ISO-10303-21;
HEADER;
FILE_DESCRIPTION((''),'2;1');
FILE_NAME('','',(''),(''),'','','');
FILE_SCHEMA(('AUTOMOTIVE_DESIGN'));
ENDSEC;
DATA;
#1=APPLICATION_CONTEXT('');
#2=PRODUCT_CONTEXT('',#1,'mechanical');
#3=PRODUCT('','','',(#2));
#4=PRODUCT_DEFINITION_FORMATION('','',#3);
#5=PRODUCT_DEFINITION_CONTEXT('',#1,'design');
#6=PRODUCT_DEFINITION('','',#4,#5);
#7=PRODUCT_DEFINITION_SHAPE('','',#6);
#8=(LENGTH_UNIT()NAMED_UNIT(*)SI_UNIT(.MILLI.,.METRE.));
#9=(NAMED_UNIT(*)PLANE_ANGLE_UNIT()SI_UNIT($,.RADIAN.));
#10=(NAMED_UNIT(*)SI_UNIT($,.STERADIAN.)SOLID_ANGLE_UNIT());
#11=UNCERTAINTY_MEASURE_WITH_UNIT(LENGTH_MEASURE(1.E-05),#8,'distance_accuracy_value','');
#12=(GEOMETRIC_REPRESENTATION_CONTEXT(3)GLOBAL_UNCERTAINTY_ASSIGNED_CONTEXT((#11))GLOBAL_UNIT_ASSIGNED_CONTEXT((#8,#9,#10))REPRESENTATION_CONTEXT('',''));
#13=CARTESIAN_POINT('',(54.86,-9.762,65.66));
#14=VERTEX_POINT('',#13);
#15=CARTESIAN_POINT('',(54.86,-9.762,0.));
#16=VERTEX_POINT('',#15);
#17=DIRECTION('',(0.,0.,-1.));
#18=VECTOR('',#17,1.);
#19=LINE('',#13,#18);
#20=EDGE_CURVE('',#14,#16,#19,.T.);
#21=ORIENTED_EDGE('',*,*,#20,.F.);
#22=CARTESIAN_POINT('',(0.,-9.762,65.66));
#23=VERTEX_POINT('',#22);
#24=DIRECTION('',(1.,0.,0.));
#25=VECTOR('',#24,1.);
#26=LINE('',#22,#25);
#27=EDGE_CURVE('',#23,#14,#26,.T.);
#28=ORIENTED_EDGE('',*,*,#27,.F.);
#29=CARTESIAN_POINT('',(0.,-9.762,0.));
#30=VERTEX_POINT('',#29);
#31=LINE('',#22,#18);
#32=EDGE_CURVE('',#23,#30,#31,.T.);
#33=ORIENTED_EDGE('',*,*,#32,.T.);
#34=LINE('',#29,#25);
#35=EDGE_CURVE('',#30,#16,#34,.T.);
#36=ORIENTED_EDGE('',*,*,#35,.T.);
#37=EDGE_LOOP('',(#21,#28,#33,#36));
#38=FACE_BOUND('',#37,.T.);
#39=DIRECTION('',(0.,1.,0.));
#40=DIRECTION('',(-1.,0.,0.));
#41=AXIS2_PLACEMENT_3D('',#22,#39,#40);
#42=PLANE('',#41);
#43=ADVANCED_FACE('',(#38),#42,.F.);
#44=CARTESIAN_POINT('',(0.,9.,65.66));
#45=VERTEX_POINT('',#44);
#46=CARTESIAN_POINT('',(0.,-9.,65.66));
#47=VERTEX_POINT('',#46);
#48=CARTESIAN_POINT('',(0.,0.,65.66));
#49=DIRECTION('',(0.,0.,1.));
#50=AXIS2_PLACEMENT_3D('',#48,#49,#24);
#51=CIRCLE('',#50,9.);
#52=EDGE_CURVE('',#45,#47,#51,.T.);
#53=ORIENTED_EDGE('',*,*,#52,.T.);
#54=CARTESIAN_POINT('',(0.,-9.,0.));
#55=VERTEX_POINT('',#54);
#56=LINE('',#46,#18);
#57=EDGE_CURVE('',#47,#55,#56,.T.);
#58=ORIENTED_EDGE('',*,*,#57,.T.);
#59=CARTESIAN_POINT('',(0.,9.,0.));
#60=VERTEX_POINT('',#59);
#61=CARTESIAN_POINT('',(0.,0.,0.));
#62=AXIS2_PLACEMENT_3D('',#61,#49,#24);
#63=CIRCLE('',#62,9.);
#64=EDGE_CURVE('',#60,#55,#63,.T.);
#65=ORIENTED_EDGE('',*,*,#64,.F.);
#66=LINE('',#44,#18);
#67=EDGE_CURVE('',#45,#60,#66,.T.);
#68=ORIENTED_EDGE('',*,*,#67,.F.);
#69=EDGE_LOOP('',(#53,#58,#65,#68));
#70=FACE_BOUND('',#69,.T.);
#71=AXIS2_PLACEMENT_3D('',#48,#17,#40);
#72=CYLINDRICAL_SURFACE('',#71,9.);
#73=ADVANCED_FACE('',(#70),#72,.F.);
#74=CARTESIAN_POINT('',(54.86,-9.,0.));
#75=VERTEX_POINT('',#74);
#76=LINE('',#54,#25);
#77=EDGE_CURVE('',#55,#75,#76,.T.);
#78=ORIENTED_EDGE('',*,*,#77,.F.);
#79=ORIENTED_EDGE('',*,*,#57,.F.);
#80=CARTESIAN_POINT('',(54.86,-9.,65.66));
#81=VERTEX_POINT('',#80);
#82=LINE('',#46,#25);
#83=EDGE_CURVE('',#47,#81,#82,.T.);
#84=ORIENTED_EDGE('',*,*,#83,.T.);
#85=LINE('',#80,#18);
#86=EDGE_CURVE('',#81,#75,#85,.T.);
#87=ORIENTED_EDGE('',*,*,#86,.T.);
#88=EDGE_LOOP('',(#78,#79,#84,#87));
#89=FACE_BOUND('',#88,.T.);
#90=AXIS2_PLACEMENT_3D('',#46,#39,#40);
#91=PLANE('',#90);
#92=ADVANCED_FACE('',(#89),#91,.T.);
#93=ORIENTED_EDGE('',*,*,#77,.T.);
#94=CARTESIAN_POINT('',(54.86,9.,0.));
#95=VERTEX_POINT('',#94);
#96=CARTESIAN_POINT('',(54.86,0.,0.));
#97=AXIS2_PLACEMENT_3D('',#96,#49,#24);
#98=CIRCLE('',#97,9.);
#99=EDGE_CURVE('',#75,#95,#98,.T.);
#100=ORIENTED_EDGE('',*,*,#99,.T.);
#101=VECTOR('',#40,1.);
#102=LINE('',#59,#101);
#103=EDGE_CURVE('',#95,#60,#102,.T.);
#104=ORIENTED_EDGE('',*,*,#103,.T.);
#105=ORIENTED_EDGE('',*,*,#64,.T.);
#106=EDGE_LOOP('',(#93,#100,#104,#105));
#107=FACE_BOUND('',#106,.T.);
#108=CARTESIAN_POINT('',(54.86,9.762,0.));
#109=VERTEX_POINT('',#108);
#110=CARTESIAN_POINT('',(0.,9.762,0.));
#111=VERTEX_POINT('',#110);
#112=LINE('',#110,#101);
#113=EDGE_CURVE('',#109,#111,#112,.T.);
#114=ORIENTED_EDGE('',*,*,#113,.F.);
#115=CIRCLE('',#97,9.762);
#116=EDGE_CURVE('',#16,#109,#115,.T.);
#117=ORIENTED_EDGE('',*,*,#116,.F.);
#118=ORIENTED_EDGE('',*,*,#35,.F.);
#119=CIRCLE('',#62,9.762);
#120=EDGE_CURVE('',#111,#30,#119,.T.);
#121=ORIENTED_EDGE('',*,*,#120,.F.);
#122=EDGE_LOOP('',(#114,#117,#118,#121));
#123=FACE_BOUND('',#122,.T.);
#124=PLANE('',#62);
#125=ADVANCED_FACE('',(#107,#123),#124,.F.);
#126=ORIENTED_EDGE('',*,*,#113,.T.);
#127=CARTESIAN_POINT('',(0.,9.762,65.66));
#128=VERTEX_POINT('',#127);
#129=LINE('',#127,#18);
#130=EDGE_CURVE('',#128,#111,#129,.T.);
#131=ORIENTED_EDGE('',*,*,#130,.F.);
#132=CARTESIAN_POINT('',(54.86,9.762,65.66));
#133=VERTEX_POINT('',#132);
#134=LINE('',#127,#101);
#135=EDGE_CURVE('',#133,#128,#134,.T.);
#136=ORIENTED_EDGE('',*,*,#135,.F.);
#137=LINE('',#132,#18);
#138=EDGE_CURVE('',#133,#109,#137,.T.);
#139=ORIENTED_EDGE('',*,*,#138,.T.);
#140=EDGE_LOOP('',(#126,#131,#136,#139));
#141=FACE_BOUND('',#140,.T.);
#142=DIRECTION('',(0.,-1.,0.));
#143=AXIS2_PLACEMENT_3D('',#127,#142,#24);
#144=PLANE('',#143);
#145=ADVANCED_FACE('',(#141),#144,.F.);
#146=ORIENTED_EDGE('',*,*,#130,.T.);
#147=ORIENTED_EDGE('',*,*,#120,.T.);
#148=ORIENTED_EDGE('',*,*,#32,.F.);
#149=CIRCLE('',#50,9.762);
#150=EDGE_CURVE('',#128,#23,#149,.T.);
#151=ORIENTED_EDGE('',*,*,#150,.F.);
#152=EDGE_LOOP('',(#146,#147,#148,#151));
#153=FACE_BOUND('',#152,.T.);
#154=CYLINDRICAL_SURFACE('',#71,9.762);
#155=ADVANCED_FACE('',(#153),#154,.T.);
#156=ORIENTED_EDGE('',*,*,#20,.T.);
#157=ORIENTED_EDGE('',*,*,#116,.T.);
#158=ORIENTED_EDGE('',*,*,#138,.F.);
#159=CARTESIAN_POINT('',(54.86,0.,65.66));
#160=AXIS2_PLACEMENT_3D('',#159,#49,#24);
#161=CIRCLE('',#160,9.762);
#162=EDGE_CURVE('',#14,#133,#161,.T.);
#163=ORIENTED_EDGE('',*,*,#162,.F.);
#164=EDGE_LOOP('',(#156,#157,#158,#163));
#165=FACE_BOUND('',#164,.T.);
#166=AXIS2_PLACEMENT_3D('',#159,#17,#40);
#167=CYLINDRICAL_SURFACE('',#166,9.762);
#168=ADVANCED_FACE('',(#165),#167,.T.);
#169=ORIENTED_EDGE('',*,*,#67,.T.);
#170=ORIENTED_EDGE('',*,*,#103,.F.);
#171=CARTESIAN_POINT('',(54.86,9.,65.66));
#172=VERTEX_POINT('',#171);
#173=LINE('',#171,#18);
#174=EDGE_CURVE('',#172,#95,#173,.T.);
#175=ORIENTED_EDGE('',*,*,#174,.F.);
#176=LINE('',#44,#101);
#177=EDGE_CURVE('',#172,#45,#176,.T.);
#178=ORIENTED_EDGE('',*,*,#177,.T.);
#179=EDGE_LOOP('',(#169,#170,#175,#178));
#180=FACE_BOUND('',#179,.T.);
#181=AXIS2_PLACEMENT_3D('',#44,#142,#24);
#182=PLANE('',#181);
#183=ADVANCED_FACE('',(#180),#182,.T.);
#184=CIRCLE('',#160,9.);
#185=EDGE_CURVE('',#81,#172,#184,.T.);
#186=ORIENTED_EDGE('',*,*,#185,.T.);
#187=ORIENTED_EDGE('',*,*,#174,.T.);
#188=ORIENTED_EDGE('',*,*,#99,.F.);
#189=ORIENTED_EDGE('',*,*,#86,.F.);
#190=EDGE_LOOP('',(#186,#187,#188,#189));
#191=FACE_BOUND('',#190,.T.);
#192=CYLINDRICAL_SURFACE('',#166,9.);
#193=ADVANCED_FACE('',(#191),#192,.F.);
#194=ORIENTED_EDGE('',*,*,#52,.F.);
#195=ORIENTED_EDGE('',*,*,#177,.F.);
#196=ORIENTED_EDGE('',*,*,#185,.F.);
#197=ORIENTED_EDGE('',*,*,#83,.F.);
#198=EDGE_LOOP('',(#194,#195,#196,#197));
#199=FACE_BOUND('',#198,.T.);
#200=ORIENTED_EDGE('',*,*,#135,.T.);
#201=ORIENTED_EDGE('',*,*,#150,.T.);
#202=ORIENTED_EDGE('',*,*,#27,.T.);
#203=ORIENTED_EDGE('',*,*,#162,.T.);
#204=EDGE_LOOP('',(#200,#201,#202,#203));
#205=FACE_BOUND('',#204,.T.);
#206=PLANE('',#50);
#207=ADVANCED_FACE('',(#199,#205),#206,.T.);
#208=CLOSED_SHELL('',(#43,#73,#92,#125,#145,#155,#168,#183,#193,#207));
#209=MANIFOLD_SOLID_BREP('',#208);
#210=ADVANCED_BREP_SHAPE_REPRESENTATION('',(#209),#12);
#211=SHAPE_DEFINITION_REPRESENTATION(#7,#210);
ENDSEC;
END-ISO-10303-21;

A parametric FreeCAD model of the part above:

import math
import FreeCAD as App
import Part
import Sketcher
from FreeCAD import Vector

doc = App.newDocument("Part")
body = doc.addObject("PartDesign::Body", "Body")

sketch1 = body.newObject("Sketcher::SketchObject", "Sketch")
sketch1.AttachmentSupport = (doc.getObject("XY_Plane"), [""])
sketch1.MapMode = "FlatFace"
sketch1.addGeometry(Part.LineSegment(Vector(0, -10, 0), Vector(55, -10, 0)), False)
sketch1.addGeometry(Part.ArcOfCircle(Part.Circle(Vector(55, 0, 0), Vector(0, 0, 1), 10), math.radians(-90), math.radians(90)), False)
sketch1.addGeometry(Part.LineSegment(Vector(55, 10, 0), Vector(0, 10, 0)), False)
sketch1.addGeometry(Part.ArcOfCircle(Part.Circle(Vector(0, 0, 0), Vector(0, 0, 1), 10), math.radians(90), math.radians(270)), False)
sketch1.addGeometry(Part.LineSegment(Vector(55, -9, 0), Vector(0, -9, 0)), False)
sketch1.addGeometry(Part.ArcOfCircle(Part.Circle(Vector(0, 0, 0), Vector(0, 0, 1), 9), math.radians(90), math.radians(270)), False)
sketch1.addGeometry(Part.LineSegment(Vector(0, 9, 0), Vector(55, 9, 0)), False)
sketch1.addGeometry(Part.ArcOfCircle(Part.Circle(Vector(55, 0, 0), Vector(0, 0, 1), 9), math.radians(-90), math.radians(90)), False)
sketch1.addConstraint(Sketcher.Constraint("Tangent", 0, 2, 1, 1))
sketch1.addConstraint(Sketcher.Constraint("Tangent", 1, 2, 2, 1))
sketch1.addConstraint(Sketcher.Constraint("Tangent", 2, 2, 3, 1))
sketch1.addConstraint(Sketcher.Constraint("Tangent", 3, 2, 0, 1))
sketch1.addConstraint(Sketcher.Constraint("Tangent", 4, 2, 5, 2))
sketch1.addConstraint(Sketcher.Constraint("Tangent", 5, 1, 6, 1))
sketch1.addConstraint(Sketcher.Constraint("Tangent", 6, 2, 7, 2))
sketch1.addConstraint(Sketcher.Constraint("Tangent", 7, 1, 4, 1))
sketch1.addConstraint(Sketcher.Constraint("Horizontal", 0))
sketch1.addConstraint(Sketcher.Constraint("Horizontal", 2))
sketch1.addConstraint(Sketcher.Constraint("Horizontal", 4))
sketch1.addConstraint(Sketcher.Constraint("Horizontal", 6))
sketch1.addConstraint(Sketcher.Constraint("Coincident", 3, 3, -1, 1))
sketch1.addConstraint(Sketcher.Constraint("Coincident", 5, 3, -1, 1))
sketch1.addConstraint(Sketcher.Constraint("Vertical", 7, 3, 0, 2))
sketch1.addConstraint(Sketcher.Constraint("Radius", 5, 9.0))
sketch1.addConstraint(Sketcher.Constraint("Radius", 1, 9.762))
sketch1.addConstraint(Sketcher.Constraint("DistanceX", 0, 1, 0, 2, 54.86))
pad1 = body.newObject("PartDesign::Pad", "Pad")
pad1.Profile = sketch1
pad1.Length = 65.66

doc.recompute()
